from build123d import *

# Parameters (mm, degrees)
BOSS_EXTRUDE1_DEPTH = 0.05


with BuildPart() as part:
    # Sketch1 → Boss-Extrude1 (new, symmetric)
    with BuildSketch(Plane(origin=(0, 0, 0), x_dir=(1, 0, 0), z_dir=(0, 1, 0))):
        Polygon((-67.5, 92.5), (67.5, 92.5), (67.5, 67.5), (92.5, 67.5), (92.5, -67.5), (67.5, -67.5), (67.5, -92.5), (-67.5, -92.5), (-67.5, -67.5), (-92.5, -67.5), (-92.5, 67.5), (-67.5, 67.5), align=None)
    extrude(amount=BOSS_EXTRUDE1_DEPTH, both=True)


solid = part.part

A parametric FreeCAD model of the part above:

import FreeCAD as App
import Part
import Sketcher

V = App.Vector


def add_polygon(sketch, points):
    """Adds a closed chain of lines whose ends are joined by coincident constraints."""
    first, n = sketch.GeometryCount, len(points)
    for a, b in zip(points, points[1:] + points[:1]):
        sketch.addGeometry(Part.LineSegment(App.Vector(*a, 0), App.Vector(*b, 0)), False)
    for i in range(n):
        sketch.addConstraint(Sketcher.Constraint("Coincident", first + i, 2, first + (i + 1) % n, 1))

doc = App.newDocument("Part")
params = doc.addObject("Spreadsheet::Sheet", "Params")
for row, (alias, value) in enumerate([
    ("sketch1_width", "135 mm"),
    ("sketch1_width2", "25 mm"),
    ("pad1_length", "0.1 mm"),
], start=1):
    params.set(f"A{row}", alias)
    params.set(f"B{row}", "=" + value)
    params.setAlias(f"B{row}", alias)

body = doc.addObject("PartDesign::Body", "Body")

sketch1 = doc.addObject("Sketcher::SketchObject", "Sketch")
body.addObject(sketch1)
sketch1.AttachmentSupport = (doc.XZ_Plane, [""])
sketch1.MapMode = "FlatFace"
add_polygon(sketch1, [(67.5, -92.5), (-67.5, -92.5), (-67.5, -67.5), (-92.5, -67.5), (-92.5, 67.5), (-67.5, 67.5), (-67.5, 92.5), (67.5, 92.5), (67.5, 67.5), (92.5, 67.5), (92.5, -67.5), (67.5, -67.5)])
sketch1.addConstraint(Sketcher.Constraint("Horizontal", 0))
sketch1.addConstraint(Sketcher.Constraint("Vertical", 1))
sketch1.addConstraint(Sketcher.Constraint("Horizontal", 2))
sketch1.addConstraint(Sketcher.Constraint("Vertical", 3))
sketch1.addConstraint(Sketcher.Constraint("Horizontal", 4))
sketch1.addConstraint(Sketcher.Constraint("Vertical", 5))
sketch1.addConstraint(Sketcher.Constraint("Horizontal", 6))
sketch1.addConstraint(Sketcher.Constraint("Vertical", 7))
sketch1.addConstraint(Sketcher.Constraint("Horizontal", 8))
sketch1.addConstraint(Sketcher.Constraint("Vertical", 9))
sketch1.addConstraint(Sketcher.Constraint("Horizontal", 10))
sketch1.addConstraint(Sketcher.Constraint("Vertical", 11))
sketch1.addConstraint(Sketcher.Constraint("Symmetric", 0, 2, 6, 2, -1, 1))
sketch1.addConstraint(Sketcher.Constraint("Symmetric", 2, 2, 8, 2, -1, 1))
sketch1.addConstraint(Sketcher.Constraint("Symmetric", 4, 2, 10, 2, -1, 1))
sketch1.addConstraint(Sketcher.Constraint("Symmetric", 4, 2, 7, 2, -2))
sketch1.addConstraint(Sketcher.Constraint("Equal", 10, 1))
sketch1.addConstraint(Sketcher.Constraint("Equal", 6, 3))
sketch1.addConstraint(Sketcher.Constraint("DistanceX", 0, 2, 0, 1, 135.0))
sketch1.addConstraint(Sketcher.Constraint("DistanceX", 2, 2, 2, 1, 25.0))
sketch1.setExpression("Constraints[30]", "Params.sketch1_width")
sketch1.setExpression("Constraints[31]", "Params.sketch1_width2")
pad1 = doc.addObject("PartDesign::Pad", "Pad")
body.addObject(pad1)
pad1.Profile = sketch1
pad1.setExpression("Length", "Params.pad1_length")
pad1.Midplane = True

doc.recompute()
